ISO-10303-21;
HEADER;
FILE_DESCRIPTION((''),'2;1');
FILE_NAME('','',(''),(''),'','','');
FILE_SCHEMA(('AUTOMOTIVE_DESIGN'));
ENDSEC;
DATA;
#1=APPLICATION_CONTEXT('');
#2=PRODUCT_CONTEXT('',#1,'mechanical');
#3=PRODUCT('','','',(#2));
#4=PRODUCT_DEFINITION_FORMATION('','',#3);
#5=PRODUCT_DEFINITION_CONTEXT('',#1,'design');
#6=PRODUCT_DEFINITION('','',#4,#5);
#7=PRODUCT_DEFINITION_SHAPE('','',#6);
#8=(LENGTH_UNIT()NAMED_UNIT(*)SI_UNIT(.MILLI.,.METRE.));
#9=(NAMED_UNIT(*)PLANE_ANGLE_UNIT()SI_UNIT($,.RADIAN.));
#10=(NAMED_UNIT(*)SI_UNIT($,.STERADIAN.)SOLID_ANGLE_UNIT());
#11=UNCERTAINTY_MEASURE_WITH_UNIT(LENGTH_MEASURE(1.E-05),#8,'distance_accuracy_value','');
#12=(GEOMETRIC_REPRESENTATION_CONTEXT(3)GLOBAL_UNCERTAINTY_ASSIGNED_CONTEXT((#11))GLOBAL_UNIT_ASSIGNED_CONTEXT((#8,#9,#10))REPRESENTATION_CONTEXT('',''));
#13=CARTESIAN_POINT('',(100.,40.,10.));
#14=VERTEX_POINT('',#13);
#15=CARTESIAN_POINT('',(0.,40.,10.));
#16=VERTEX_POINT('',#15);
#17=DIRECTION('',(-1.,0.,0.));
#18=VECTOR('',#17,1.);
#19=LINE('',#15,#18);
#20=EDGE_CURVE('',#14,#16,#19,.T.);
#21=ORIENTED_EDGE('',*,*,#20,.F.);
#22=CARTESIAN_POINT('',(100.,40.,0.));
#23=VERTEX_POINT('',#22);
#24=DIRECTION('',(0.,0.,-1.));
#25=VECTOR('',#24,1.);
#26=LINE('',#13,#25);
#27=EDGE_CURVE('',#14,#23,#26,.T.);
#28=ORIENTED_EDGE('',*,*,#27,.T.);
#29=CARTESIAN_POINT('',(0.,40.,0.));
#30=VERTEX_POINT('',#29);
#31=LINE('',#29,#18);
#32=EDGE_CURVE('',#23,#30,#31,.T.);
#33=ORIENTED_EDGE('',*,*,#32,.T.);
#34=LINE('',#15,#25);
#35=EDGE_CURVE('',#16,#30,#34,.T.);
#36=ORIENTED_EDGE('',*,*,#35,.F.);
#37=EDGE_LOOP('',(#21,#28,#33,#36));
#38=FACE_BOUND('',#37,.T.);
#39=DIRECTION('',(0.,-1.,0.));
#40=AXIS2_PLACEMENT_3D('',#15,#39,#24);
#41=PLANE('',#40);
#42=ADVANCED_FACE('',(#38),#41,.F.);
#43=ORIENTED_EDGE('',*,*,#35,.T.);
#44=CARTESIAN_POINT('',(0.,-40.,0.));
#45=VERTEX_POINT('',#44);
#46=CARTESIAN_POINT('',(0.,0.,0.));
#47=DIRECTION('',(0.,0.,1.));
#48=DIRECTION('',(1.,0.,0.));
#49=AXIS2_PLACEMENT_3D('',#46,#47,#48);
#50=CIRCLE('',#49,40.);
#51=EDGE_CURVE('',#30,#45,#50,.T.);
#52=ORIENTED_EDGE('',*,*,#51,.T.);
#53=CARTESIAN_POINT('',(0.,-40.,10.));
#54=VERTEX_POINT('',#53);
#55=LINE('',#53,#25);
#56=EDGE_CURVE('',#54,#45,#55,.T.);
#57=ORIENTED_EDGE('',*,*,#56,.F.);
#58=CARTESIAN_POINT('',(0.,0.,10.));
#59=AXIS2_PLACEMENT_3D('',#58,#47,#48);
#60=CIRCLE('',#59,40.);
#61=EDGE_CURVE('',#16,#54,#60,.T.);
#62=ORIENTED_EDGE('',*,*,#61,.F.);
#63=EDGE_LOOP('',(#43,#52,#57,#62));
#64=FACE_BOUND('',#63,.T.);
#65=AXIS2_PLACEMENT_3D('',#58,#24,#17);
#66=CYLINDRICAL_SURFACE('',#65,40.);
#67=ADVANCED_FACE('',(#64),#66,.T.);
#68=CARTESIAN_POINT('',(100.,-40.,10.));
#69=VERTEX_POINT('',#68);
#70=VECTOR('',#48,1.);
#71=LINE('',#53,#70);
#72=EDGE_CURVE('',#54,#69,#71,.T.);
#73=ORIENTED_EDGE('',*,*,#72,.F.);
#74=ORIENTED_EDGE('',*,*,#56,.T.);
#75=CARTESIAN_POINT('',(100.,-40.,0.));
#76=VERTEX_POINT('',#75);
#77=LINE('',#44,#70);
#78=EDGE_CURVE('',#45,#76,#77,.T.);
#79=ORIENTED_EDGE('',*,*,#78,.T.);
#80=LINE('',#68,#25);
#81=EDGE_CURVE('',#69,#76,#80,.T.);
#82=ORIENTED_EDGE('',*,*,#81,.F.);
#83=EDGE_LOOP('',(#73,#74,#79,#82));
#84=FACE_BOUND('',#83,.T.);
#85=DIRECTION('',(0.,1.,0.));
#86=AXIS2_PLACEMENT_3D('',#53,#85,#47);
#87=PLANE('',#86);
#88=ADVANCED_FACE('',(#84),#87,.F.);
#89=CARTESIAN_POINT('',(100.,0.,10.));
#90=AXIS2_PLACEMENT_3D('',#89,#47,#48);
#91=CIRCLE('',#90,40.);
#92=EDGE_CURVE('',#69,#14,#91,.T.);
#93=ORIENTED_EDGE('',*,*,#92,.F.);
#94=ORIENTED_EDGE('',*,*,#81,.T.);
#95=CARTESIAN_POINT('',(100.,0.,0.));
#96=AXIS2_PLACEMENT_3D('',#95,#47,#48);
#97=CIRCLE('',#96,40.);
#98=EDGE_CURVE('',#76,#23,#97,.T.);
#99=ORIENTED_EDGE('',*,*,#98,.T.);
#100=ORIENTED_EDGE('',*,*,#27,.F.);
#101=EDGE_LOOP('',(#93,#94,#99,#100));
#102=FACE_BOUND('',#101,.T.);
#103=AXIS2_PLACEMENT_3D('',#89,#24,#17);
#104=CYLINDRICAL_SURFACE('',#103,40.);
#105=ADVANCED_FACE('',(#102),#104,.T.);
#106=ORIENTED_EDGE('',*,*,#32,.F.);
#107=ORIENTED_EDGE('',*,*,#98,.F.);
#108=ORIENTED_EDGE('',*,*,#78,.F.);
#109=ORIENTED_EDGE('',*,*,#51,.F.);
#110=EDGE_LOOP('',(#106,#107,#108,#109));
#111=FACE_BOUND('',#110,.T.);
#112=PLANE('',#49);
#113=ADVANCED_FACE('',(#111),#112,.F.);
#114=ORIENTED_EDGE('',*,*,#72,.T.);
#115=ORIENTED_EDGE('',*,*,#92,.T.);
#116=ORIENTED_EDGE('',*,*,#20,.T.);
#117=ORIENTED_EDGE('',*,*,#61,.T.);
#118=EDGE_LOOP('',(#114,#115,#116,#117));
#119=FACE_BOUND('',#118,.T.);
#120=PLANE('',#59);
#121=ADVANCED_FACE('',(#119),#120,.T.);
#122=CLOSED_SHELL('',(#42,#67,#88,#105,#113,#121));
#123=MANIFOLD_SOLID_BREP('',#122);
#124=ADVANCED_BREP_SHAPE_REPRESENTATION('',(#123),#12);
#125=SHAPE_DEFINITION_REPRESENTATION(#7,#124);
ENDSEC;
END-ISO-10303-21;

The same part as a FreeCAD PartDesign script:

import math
import FreeCAD as App
import Part
import Sketcher

V = App.Vector

doc = App.newDocument("Part")
body = doc.addObject("PartDesign::Body", "Body")

# Sketch on XY plane
sketch1 = body.newObject("Sketcher::SketchObject", "Sketch")
sketch1.AttachmentSupport = (doc.getObject("XY_Plane"), [""])
sketch1.MapMode = "FlatFace"
sketch1.addGeometry(Part.LineSegment(V(100, 40, 0), V(0, 40, 0)), False)
sketch1.addGeometry(Part.ArcOfCircle(Part.Circle(V(0, 0, 0), V(0, 0, 1), 40), math.radians(90), math.radians(270)), False)
sketch1.addGeometry(Part.LineSegment(V(0, -40, 0), V(100, -40, 0)), False)
sketch1.addGeometry(Part.ArcOfCircle(Part.Circle(V(100, 0, 0), V(0, 0, 1), 40), math.radians(-90), math.radians(90)), False)
sketch1.addConstraint(Sketcher.Constraint("Tangent", 0, 2, 1, 1))
sketch1.addConstraint(Sketcher.Constraint("Tangent", 1, 2, 2, 1))
sketch1.addConstraint(Sketcher.Constraint("Tangent", 2, 2, 3, 1))
sketch1.addConstraint(Sketcher.Constraint("Tangent", 3, 2, 0, 1))
sketch1.addConstraint(Sketcher.Constraint("Horizontal", 0))
sketch1.addConstraint(Sketcher.Constraint("Horizontal", 2))
sketch1.addConstraint(Sketcher.Constraint("Coincident", 1, 3, -1, 1))
sketch1.addConstraint(Sketcher.Constraint("Radius", 1, 40.0))
sketch1.addConstraint(Sketcher.Constraint("DistanceX", 0, 2, 0, 1, 100.0))
pad1 = body.newObject("PartDesign::Pad", "Pad")
pad1.Profile = sketch1
pad1.Length = 10

doc.recompute()
